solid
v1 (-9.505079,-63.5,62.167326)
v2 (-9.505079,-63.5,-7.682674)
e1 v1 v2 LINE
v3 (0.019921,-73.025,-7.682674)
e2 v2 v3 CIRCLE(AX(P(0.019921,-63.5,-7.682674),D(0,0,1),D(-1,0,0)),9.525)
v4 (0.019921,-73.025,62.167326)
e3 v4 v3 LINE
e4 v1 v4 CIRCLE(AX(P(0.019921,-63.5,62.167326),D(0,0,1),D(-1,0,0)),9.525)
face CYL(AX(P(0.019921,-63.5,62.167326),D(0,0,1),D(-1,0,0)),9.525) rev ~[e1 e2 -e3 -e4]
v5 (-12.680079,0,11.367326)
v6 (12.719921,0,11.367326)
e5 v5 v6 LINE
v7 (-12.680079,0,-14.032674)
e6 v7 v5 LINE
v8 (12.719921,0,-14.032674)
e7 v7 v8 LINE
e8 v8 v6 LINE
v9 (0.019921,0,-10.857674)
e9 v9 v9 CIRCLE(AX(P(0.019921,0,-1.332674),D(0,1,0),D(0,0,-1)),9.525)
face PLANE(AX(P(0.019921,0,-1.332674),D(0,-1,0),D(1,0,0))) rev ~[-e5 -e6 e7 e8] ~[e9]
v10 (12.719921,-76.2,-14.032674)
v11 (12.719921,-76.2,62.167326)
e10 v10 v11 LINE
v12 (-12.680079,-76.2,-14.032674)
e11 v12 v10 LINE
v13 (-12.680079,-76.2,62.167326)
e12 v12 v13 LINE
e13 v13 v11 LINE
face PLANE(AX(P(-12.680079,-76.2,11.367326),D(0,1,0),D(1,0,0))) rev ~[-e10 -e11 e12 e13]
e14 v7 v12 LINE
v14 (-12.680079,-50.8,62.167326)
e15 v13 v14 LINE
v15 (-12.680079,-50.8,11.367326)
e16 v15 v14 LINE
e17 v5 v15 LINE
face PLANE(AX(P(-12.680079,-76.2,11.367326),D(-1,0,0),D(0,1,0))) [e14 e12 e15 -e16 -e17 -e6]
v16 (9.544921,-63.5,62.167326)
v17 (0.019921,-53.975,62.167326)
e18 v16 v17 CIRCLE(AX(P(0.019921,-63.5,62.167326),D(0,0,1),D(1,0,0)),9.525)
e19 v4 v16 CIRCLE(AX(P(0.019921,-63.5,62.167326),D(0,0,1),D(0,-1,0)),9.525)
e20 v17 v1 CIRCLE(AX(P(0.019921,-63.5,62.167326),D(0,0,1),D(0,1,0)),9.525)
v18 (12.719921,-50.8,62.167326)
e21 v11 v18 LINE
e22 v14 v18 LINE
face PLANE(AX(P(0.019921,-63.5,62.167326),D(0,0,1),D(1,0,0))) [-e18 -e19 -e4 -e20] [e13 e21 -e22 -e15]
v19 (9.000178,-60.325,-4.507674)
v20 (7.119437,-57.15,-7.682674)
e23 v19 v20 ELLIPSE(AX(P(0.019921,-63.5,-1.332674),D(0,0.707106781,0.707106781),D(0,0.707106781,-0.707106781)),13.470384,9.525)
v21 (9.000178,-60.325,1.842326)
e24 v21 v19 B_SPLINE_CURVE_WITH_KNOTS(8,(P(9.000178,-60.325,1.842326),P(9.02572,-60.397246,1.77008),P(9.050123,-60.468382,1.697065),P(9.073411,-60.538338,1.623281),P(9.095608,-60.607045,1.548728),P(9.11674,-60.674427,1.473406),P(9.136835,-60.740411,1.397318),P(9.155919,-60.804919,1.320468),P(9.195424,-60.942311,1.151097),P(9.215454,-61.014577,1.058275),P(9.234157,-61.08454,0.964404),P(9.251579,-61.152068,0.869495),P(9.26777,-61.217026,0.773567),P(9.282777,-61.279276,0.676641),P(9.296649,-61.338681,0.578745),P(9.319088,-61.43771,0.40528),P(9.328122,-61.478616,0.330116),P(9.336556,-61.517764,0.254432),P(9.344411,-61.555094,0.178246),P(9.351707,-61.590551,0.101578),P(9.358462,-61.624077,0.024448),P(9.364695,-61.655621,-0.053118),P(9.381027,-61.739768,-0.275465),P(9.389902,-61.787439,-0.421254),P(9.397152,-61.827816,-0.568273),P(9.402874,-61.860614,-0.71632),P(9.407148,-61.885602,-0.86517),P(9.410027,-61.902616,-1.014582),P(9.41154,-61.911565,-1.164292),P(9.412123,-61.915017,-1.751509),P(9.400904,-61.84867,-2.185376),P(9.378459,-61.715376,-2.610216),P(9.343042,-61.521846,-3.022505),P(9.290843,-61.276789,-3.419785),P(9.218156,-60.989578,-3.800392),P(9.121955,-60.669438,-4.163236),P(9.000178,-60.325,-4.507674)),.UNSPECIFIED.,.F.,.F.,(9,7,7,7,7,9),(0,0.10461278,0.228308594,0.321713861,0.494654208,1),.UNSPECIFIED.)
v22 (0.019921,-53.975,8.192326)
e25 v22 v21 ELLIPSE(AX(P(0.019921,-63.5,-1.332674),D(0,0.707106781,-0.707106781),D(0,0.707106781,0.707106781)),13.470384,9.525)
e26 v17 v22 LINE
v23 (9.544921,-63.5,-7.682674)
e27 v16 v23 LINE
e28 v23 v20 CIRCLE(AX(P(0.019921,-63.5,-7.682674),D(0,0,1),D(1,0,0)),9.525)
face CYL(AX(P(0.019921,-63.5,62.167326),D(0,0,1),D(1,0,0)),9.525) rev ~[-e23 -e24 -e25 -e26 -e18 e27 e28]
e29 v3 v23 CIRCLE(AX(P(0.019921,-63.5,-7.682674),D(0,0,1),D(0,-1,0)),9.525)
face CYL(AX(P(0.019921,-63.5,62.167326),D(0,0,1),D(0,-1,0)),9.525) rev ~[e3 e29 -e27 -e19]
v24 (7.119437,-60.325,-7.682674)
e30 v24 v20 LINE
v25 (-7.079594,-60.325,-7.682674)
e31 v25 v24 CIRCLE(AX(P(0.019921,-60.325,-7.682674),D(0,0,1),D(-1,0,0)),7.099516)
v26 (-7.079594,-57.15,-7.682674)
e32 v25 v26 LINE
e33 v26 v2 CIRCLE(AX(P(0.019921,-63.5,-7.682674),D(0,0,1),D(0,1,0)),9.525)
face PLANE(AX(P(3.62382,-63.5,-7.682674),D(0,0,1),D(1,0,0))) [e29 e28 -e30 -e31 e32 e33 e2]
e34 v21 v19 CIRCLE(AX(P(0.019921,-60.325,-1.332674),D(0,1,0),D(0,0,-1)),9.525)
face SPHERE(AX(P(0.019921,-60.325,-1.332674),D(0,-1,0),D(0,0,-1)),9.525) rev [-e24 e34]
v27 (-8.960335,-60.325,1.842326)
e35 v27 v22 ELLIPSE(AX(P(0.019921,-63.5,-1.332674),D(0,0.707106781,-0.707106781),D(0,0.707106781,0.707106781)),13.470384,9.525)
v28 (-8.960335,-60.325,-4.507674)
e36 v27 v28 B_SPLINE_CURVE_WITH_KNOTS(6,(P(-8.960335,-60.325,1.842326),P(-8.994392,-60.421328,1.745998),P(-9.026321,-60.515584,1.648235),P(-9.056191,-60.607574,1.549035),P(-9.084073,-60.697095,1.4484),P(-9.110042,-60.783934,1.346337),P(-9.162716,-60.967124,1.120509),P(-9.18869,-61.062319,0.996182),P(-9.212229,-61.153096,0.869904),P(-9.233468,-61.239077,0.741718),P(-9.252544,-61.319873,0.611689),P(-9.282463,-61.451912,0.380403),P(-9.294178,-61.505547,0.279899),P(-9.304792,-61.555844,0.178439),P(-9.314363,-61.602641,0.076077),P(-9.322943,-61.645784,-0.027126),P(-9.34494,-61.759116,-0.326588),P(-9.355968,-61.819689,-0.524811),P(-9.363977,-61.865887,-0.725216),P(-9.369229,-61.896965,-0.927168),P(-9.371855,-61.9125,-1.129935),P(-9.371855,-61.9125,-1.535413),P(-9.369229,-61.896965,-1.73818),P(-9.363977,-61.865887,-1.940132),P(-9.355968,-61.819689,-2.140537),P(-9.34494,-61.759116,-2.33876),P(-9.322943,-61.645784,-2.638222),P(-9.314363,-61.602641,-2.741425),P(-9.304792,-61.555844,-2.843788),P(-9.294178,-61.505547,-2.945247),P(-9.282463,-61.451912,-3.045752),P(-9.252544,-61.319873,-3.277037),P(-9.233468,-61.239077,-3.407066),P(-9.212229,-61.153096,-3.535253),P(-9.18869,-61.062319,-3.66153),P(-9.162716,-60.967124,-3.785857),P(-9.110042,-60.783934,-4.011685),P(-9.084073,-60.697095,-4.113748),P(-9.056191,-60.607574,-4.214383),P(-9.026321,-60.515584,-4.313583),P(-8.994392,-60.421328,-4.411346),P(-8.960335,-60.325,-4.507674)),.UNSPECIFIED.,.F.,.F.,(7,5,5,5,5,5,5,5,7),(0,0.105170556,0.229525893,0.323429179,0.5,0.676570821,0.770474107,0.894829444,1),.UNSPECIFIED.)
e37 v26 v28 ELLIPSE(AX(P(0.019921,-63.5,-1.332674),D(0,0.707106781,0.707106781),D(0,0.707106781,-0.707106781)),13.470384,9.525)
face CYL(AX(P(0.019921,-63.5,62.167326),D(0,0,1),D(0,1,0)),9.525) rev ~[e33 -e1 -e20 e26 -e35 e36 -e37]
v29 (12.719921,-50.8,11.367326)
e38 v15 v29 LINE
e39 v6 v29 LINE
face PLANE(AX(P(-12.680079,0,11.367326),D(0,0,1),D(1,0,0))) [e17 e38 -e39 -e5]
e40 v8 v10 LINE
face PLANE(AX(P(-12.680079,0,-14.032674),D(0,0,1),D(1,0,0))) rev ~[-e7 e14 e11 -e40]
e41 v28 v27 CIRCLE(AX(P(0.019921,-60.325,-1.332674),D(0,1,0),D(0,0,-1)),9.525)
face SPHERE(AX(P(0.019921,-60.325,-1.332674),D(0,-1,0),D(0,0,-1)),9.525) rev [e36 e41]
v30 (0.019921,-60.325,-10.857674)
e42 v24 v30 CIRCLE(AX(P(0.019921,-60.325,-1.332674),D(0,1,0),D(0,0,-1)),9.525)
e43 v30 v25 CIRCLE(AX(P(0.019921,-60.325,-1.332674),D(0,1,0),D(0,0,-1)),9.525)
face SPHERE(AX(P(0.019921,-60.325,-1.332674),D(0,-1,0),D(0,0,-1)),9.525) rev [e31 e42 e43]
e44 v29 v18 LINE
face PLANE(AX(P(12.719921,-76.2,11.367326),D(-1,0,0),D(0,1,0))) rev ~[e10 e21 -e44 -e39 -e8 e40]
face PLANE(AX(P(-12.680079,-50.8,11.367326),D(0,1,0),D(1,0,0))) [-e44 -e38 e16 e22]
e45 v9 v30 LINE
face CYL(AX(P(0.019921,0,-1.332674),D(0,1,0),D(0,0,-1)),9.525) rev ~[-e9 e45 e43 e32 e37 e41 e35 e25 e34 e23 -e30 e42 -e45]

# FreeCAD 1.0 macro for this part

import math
import FreeCAD as App
import Part
import Sketcher
from FreeCAD import Vector
Q = App.Units.Quantity


def edges_at(feature, points):
    """Names of the edges that pass closest to the given points."""
    edges = feature.Shape.Edges
    near = lambda p: min(range(len(edges)), key=lambda i: edges[i].distToShape(Part.Vertex(*p))[0])
    return sorted({f"Edge{near(p) + 1}" for p in points})

doc = App.newDocument("Part")
body = doc.addObject("PartDesign::Body", "Body")

# Sketch on XZ plane
sketch1 = doc.addObject("Sketcher::SketchObject", "Sketch")
body.addObject(sketch1)
sketch1.AttachmentSupport = (doc.XZ_Plane, [""])
sketch1.MapMode = "FlatFace"
sketch1.addGeometry([
    Part.LineSegment(Vector(-13, 11, 0), Vector(-13, -14, 0)),
    Part.LineSegment(Vector(-13, -14, 0), Vector(13, -14, 0)),
    Part.LineSegment(Vector(13, -14, 0), Vector(13, 11, 0)),
    Part.LineSegment(Vector(13, 11, 0), Vector(-13, 11, 0)),
], False)
sketch1.addConstraint([
    Sketcher.Constraint("Coincident", 0, 2, 1, 1),
    Sketcher.Constraint("Coincident", 1, 2, 2, 1),
    Sketcher.Constraint("Coincident", 2, 2, 3, 1),
    Sketcher.Constraint("Coincident", 3, 2, 0, 1),
    Sketcher.Constraint("Vertical", 0),
    Sketcher.Constraint("Horizontal", 1),
    Sketcher.Constraint("Vertical", 2),
    Sketcher.Constraint("Horizontal", 3),
    Sketcher.Constraint("Equal", 3, 0),
    Sketcher.Constraint("DistanceX", 1, 1, 1, 2, Q("1 in")),
    Sketcher.Constraint("DistanceX", 0, 2, -1, 1, 12.680079),
    Sketcher.Constraint("DistanceY", 0, 2, -1, 1, 14.032674),
])
pad1 = doc.addObject("PartDesign::Pad", "Pad")
body.addObject(pad1)
pad1.Profile = sketch1
pad1.Length = Q("3 in")

# Sketch on XY plane
sketch2 = doc.addObject("Sketcher::SketchObject", "Sketch001")
body.addObject(sketch2)
sketch2.AttachmentSupport = (doc.XY_Plane, [""])
sketch2.MapMode = "FlatFace"
sketch2.AttachmentOffset = App.Placement(Vector(0, 0, 11.367326), App.Rotation())
sketch2.addGeometry([
    Part.LineSegment(Vector(-13, -51, 0), Vector(-13, -76, 0)),
    Part.LineSegment(Vector(-13, -76, 0), Vector(13, -76, 0)),
    Part.LineSegment(Vector(13, -76, 0), Vector(13, -51, 0)),
    Part.LineSegment(Vector(13, -51, 0), Vector(-13, -51, 0)),
], False)
sketch2.addConstraint([
    Sketcher.Constraint("Coincident", 0, 2, 1, 1),
    Sketcher.Constraint("Coincident", 1, 2, 2, 1),
    Sketcher.Constraint("Coincident", 2, 2, 3, 1),
    Sketcher.Constraint("Coincident", 3, 2, 0, 1),
    Sketcher.Constraint("Vertical", 0),
    Sketcher.Constraint("Horizontal", 1),
    Sketcher.Constraint("Vertical", 2),
    Sketcher.Constraint("Horizontal", 3),
    Sketcher.Constraint("Equal", 3, 0),
    Sketcher.Constraint("DistanceX", 1, 1, 1, 2, Q("1 in")),
    Sketcher.Constraint("DistanceY", 0, 2, -1, 1, Q("3 in")),
    Sketcher.Constraint("DistanceX", 0, 2, -1, 1, 12.680079),
])
pad2 = doc.addObject("PartDesign::Pad", "Pad001")
body.addObject(pad2)
pad2.Profile = sketch2
pad2.Length = Q("2 in")

# Sketch on XZ plane
sketch3 = doc.addObject("Sketcher::SketchObject", "Sketch002")
body.addObject(sketch3)
sketch3.AttachmentSupport = (doc.XZ_Plane, [""])
sketch3.MapMode = "FlatFace"
sketch3.addGeometry(Part.Circle(Vector(0, -1, 0), Vector(0, 0, 1), 10), False)
sketch3.addConstraint([
    Sketcher.Constraint("Diameter", 0, Q("0.75 in")),
    Sketcher.Constraint("DistanceX", -1, 1, 0, 3, 0.019921),
    Sketcher.Constraint("DistanceY", 0, 3, -1, 1, 1.332674),
])
pocket1 = doc.addObject("PartDesign::Pocket", "Pocket")
body.addObject(pocket1)
pocket1.Profile = sketch3
pocket1.Length = Q("2.75 in")
pocket1.Reversed = True
doc.recompute()

fillet = doc.addObject("PartDesign::Fillet", "Fillet")
body.addObject(fillet)
fillet.Base = (pocket1, edges_at(pocket1, [(0.02, -69.85, 8.192)]))
fillet.Radius = Q("0.375 in")

# Sketch on XY plane
sketch4 = doc.addObject("Sketcher::SketchObject", "Sketch003")
body.addObject(sketch4)
sketch4.AttachmentSupport = (doc.XY_Plane, [""])
sketch4.MapMode = "FlatFace"
sketch4.AttachmentOffset = App.Placement(Vector(0, 0, 62.167326), App.Rotation())
sketch4.addGeometry([
    Part.ArcOfCircle(Part.Circle(Vector(0, -64, 0), Vector(0, 0, 1), 10), math.radians(0), math.radians(90)),
    Part.ArcOfCircle(Part.Circle(Vector(0, -64, 0), Vector(0, 0, 1), 10), math.radians(90), math.radians(180)),
    Part.ArcOfCircle(Part.Circle(Vector(0, -64, 0), Vector(0, 0, 1), 10), math.radians(180), math.radians(270)),
    Part.ArcOfCircle(Part.Circle(Vector(0, -64, 0), Vector(0, 0, 1), 10), math.radians(-90), math.radians(0)),
], False)
sketch4.addConstraint([
    Sketcher.Constraint("Tangent", 0, 2, 1, 1),
    Sketcher.Constraint("Tangent", 1, 2, 2, 1),
    Sketcher.Constraint("Tangent", 2, 2, 3, 1),
    Sketcher.Constraint("Tangent", 3, 2, 0, 1),
    Sketcher.Constraint("Equal", 0, 1),
    Sketcher.Constraint("Horizontal", 3, 3, 1, 2),
    Sketcher.Constraint("Horizontal", 1, 2, 3, 2),
    Sketcher.Constraint("Vertical", 3, 3, 0, 2),
    Sketcher.Constraint("Vertical", 0, 2, 2, 2),
    Sketcher.Constraint("Radius", 0, Q("0.375 in")),
    Sketcher.Constraint("DistanceY", 0, 3, -1, 1, Q("2.5 in")),
    Sketcher.Constraint("DistanceX", -1, 1, 0, 3, 0.019921),
])
pocket2 = doc.addObject("PartDesign::Pocket", "Pocket001")
body.addObject(pocket2)
pocket2.Profile = sketch4
pocket2.Length = Q("2.75 in")

doc.recompute()
